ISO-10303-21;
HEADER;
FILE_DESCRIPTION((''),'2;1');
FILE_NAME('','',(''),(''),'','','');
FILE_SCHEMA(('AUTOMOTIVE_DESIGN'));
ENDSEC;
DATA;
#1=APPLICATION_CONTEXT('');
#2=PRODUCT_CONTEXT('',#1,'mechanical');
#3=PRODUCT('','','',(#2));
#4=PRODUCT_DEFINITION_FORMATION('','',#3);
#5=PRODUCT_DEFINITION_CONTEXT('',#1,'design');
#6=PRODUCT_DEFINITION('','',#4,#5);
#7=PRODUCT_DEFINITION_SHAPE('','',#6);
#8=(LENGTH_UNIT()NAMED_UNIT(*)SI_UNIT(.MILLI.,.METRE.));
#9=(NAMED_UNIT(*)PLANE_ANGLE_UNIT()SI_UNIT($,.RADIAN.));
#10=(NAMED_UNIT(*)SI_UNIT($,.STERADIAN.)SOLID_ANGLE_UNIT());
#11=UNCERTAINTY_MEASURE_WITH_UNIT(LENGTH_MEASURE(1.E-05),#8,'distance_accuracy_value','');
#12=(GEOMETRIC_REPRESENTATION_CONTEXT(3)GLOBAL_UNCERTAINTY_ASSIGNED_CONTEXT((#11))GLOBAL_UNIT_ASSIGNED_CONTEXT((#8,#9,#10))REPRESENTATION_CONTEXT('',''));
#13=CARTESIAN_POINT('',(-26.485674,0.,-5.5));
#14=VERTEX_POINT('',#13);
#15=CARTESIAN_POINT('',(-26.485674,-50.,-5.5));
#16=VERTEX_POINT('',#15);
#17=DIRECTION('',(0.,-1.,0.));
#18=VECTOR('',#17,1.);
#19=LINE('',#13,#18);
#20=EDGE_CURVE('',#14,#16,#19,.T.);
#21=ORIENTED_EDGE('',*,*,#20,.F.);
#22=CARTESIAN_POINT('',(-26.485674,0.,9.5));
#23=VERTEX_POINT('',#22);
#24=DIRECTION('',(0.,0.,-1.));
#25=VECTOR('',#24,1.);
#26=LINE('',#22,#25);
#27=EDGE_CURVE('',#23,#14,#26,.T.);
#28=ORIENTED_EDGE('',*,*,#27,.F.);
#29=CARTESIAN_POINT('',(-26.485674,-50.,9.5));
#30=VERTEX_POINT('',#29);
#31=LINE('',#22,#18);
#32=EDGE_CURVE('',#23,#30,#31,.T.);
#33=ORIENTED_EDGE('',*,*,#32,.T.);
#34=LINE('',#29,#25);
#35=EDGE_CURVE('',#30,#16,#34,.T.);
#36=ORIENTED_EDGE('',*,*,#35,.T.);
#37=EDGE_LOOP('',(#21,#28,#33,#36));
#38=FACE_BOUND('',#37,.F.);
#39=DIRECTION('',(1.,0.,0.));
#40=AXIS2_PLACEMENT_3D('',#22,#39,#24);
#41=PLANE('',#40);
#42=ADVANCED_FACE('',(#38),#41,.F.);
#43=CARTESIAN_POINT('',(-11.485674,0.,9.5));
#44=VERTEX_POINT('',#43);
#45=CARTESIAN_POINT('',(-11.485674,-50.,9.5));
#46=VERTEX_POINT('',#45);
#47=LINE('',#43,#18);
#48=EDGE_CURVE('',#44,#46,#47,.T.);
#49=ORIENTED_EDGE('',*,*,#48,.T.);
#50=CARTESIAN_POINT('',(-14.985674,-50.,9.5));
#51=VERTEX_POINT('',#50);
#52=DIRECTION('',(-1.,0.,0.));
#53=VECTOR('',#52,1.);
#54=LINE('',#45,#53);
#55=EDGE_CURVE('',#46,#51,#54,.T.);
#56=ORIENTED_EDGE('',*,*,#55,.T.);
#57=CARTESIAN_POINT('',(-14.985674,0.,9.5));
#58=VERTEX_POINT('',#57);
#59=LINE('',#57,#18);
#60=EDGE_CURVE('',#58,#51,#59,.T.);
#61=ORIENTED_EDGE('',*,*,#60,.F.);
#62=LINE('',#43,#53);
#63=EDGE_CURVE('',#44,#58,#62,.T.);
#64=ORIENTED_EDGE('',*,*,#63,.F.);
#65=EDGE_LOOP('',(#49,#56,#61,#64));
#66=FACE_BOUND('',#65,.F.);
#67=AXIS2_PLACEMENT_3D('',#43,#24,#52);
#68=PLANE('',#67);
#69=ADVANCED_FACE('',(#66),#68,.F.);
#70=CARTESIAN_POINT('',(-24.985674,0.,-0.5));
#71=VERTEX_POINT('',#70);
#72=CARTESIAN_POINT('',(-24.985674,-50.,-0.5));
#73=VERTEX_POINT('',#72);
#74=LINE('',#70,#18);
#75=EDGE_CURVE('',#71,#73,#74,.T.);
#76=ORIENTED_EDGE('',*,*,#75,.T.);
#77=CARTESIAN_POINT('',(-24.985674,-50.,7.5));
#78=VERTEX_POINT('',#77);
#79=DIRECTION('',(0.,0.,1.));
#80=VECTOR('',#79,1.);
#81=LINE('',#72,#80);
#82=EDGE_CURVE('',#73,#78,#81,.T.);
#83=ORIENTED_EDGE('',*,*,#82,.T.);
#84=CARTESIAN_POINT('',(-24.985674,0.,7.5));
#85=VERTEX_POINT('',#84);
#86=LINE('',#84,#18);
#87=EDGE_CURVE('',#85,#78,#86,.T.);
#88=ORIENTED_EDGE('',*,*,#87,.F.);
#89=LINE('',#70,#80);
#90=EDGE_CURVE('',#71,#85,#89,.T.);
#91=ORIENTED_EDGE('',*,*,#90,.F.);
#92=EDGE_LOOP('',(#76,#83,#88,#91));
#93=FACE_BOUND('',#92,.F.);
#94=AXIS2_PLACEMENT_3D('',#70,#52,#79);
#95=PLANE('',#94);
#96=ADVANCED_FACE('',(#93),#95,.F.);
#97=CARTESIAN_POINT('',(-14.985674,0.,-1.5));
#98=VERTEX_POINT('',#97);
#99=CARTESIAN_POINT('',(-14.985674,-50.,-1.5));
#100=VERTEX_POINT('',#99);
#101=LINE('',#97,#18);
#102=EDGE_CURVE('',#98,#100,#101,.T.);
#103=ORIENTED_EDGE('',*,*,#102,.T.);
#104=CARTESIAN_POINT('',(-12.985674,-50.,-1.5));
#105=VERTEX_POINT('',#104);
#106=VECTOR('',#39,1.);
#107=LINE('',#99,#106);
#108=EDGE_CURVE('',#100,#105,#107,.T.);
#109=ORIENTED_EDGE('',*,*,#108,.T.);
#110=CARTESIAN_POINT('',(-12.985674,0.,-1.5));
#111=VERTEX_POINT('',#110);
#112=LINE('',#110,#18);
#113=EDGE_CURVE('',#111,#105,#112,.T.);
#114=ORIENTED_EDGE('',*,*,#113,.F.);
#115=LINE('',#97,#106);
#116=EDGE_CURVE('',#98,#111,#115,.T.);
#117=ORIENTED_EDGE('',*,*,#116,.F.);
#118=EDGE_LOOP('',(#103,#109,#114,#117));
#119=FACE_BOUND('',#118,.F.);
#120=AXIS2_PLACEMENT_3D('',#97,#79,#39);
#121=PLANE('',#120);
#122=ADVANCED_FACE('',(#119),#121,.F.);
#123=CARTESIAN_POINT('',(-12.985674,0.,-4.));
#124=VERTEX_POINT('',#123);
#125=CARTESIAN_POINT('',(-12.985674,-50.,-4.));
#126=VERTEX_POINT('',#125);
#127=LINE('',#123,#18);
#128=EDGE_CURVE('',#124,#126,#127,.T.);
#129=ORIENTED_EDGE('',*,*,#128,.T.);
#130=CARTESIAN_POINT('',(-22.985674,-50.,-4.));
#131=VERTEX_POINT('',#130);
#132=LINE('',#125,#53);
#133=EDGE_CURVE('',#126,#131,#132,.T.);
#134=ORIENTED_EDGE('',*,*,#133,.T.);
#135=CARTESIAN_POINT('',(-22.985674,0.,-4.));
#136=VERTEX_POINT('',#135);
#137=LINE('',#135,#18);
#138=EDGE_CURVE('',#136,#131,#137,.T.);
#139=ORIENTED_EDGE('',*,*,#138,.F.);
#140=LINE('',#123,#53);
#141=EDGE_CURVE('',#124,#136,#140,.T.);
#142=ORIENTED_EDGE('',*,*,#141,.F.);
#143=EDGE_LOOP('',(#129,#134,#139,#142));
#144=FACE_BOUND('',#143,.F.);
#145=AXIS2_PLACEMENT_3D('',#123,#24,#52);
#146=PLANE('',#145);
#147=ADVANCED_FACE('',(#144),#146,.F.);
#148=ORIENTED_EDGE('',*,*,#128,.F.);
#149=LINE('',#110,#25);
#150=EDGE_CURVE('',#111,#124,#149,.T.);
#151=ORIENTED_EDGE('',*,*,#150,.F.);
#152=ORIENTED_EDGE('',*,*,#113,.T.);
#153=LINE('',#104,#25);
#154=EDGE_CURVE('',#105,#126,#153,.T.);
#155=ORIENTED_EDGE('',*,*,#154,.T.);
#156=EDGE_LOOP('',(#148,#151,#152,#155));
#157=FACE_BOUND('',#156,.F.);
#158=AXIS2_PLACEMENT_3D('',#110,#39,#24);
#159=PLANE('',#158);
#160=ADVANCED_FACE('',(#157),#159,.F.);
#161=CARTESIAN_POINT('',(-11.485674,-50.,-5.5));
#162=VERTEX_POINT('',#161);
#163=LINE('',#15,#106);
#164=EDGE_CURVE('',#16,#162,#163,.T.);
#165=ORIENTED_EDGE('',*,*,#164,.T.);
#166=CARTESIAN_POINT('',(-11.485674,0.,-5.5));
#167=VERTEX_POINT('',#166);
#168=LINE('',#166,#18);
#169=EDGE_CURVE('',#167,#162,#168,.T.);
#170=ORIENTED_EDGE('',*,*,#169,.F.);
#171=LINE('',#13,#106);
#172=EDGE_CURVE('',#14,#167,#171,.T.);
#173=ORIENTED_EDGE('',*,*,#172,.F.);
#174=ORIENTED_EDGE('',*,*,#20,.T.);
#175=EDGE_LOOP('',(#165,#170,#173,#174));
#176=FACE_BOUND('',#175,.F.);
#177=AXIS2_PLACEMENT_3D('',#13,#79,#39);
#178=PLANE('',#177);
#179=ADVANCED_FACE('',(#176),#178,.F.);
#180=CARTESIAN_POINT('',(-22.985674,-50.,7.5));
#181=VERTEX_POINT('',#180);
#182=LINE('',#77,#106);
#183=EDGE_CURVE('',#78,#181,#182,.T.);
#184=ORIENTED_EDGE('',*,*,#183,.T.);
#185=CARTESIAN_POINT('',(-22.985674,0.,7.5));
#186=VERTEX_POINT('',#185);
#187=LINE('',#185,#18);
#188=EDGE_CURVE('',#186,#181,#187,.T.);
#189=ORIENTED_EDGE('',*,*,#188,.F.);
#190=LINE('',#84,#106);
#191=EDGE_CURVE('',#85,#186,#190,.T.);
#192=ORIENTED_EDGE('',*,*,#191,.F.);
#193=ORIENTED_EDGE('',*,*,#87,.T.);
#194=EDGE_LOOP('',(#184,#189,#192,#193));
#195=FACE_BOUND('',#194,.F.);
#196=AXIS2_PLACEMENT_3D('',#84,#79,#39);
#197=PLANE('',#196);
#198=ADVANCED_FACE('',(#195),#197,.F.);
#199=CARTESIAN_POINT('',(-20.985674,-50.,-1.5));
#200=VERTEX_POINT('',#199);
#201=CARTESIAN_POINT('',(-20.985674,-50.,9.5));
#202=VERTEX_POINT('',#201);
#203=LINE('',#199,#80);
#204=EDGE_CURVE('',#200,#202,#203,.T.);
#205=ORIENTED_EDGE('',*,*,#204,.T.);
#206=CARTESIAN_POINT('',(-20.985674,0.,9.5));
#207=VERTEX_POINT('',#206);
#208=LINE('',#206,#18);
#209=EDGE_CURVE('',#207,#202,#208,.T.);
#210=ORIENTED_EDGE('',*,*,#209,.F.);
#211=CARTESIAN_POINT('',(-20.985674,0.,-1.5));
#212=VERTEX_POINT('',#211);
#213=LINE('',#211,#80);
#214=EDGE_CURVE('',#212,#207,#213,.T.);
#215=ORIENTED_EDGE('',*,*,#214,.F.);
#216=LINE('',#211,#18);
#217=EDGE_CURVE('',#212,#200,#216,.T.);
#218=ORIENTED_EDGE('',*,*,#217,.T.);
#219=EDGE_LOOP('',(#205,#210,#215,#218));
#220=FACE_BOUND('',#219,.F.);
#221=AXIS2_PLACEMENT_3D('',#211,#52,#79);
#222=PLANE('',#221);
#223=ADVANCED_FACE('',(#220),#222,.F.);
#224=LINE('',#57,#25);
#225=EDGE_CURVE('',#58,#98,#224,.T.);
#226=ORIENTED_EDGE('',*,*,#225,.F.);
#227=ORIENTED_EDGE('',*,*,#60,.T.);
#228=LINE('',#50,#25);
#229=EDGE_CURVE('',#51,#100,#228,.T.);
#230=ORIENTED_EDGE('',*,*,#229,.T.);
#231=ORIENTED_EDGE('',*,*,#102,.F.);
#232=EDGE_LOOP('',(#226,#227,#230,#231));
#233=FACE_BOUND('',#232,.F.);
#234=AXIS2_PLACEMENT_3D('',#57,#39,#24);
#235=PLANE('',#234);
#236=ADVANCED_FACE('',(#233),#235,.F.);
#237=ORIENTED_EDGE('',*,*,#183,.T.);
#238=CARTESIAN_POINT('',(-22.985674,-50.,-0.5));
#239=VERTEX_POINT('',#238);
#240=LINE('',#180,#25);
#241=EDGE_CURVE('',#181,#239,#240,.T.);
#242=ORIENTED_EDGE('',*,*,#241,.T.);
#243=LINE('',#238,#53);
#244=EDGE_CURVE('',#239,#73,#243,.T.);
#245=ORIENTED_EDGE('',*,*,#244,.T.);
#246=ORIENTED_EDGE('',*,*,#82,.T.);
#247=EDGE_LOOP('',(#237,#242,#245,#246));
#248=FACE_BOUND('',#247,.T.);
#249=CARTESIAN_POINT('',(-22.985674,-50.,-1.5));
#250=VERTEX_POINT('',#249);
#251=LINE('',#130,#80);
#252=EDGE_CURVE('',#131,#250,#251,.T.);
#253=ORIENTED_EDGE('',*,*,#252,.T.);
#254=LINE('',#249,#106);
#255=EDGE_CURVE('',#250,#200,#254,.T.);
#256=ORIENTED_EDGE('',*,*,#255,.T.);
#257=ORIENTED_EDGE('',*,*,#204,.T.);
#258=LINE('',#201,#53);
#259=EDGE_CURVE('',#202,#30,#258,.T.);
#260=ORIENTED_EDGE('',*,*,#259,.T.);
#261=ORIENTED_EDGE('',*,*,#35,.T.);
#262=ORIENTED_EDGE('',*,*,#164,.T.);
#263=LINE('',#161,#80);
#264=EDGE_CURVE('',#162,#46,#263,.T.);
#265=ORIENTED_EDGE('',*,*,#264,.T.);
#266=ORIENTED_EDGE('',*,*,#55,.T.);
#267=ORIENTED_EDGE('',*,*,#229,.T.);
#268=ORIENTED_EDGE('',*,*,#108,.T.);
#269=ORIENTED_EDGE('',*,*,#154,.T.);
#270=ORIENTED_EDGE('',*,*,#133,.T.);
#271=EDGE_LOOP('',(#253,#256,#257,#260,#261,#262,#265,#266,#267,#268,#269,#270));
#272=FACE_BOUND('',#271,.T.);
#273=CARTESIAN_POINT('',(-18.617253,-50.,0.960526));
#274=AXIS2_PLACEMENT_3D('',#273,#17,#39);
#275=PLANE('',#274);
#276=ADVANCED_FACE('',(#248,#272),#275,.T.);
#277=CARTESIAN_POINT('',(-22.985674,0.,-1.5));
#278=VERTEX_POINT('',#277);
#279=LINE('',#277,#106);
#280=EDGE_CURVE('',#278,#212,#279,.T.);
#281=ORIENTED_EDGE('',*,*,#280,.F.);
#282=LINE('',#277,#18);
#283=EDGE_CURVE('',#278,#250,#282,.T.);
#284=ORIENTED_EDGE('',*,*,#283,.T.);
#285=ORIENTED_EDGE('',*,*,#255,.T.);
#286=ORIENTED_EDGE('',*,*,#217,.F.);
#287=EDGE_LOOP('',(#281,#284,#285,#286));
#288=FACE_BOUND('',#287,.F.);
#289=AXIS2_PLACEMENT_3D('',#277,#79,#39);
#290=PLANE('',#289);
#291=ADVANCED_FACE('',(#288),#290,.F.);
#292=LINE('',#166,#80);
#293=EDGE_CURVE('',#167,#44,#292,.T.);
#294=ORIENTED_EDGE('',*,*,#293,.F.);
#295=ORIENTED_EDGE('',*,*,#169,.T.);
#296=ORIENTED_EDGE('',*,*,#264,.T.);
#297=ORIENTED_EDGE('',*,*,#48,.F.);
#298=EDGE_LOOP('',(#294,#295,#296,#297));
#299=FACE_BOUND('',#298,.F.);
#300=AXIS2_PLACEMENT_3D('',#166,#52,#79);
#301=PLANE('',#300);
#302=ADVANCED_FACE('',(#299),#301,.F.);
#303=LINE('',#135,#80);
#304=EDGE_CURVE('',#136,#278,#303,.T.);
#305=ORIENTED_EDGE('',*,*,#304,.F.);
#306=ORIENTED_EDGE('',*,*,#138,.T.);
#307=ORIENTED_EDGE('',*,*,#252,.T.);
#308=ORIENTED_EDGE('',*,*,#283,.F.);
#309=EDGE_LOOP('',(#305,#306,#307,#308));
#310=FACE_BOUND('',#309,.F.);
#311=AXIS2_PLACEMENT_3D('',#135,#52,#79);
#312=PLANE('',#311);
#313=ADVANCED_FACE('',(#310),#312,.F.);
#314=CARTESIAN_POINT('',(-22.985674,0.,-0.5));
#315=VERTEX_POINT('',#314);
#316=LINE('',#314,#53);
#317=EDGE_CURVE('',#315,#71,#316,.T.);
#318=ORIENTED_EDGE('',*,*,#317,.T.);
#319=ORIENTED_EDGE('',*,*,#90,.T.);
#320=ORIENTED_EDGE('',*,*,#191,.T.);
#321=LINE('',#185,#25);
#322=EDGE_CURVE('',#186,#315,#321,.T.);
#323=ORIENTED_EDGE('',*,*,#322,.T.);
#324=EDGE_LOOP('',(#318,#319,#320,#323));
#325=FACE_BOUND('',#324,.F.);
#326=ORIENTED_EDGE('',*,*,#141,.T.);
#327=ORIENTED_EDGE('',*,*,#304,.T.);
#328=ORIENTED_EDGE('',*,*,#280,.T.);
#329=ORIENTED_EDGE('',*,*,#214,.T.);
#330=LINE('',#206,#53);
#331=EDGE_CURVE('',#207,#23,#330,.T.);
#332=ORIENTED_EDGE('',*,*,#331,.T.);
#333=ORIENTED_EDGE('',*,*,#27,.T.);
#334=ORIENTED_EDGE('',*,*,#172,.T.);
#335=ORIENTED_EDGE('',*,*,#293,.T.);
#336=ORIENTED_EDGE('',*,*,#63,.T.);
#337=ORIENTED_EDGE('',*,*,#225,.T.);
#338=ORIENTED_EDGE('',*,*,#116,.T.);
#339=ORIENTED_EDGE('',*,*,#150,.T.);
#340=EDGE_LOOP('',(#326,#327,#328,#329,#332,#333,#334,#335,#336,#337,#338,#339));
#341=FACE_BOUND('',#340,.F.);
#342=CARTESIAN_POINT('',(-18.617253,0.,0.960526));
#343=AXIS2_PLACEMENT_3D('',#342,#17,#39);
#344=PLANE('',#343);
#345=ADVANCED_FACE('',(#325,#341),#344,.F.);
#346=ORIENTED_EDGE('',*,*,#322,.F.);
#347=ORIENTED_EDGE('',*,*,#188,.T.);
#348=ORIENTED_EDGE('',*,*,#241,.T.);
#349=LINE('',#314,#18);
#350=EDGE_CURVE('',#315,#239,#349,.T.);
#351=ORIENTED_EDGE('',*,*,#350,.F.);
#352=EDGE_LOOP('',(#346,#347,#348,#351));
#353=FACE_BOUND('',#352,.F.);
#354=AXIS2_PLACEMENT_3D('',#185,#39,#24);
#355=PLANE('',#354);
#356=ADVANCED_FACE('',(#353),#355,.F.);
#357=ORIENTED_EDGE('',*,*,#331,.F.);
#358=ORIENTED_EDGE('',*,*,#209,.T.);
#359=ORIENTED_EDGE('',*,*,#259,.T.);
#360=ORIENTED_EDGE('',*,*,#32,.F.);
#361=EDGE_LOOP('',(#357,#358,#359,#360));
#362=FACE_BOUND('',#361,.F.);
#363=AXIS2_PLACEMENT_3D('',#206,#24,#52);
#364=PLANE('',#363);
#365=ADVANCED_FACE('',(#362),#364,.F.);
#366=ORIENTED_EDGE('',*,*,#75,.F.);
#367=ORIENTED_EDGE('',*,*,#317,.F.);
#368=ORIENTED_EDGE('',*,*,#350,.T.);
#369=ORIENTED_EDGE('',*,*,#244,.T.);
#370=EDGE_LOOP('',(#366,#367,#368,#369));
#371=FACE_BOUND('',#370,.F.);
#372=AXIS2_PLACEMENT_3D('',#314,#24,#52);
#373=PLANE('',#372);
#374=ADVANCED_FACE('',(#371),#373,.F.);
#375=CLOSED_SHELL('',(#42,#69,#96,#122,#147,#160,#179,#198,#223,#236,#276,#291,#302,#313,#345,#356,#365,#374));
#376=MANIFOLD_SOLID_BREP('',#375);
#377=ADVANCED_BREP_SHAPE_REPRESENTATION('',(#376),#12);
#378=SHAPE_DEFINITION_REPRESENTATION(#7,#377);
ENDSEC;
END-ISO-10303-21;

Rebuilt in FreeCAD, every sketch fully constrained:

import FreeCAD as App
import Part
import Sketcher

V = App.Vector
Q = App.Units.Quantity

doc = App.newDocument("Part")
params = doc.addObject("Spreadsheet::Sheet", "Params")
for row, (alias, value) in enumerate([
    ("sketch1_width", "15 mm"),
    ("sketch1_width2", "2 mm"),
    ("sketch1_width3", "10 mm"),
    ("sketch1_height", "11 mm"),
    ("sketch1_height2", "8 mm"),
    ("pad1_length", "50 mm"),
], start=1):
    params.set(f"A{row}", alias)
    params.set(f"B{row}", "=" + value)
    params.setAlias(f"B{row}", alias)

body = doc.addObject("PartDesign::Body", "Body")

# Sketch on XZ plane
sketch1 = doc.addObject("Sketcher::SketchObject", "Sketch")
body.addObject(sketch1)
sketch1.AttachmentSupport = (doc.XZ_Plane, [""])
sketch1.MapMode = "FlatFace"
sketch1.addGeometry(Part.LineSegment(V(-20.985674, 9.5, 0), V(-26.485674, 9.5, 0)), False)
sketch1.addGeometry(Part.LineSegment(V(-26.485674, 9.5, 0), V(-26.485674, -5.5, 0)), False)
sketch1.addGeometry(Part.LineSegment(V(-26.485674, -5.5, 0), V(-11.485674, -5.5, 0)), False)
sketch1.addGeometry(Part.LineSegment(V(-11.485674, -5.5, 0), V(-11.485674, 9.5, 0)), False)
sketch1.addGeometry(Part.LineSegment(V(-11.485674, 9.5, 0), V(-14.985674, 9.5, 0)), False)
sketch1.addGeometry(Part.LineSegment(V(-14.985674, 9.5, 0), V(-14.985674, -1.5, 0)), False)
sketch1.addGeometry(Part.LineSegment(V(-14.985674, -1.5, 0), V(-12.985674, -1.5, 0)), False)
sketch1.addGeometry(Part.LineSegment(V(-12.985674, -1.5, 0), V(-12.985674, -4, 0)), False)
sketch1.addGeometry(Part.LineSegment(V(-12.985674, -4, 0), V(-22.985674, -4, 0)), False)
sketch1.addGeometry(Part.LineSegment(V(-22.985674, -4, 0), V(-22.985674, -1.5, 0)), False)
sketch1.addGeometry(Part.LineSegment(V(-22.985674, -1.5, 0), V(-20.985674, -1.5, 0)), False)
sketch1.addGeometry(Part.LineSegment(V(-20.985674, -1.5, 0), V(-20.985674, 9.5, 0)), False)
sketch1.addGeometry(Part.LineSegment(V(-22.985674, -0.5, 0), V(-24.985674, -0.5, 0)), False)
sketch1.addGeometry(Part.LineSegment(V(-24.985674, -0.5, 0), V(-24.985674, 7.5, 0)), False)
sketch1.addGeometry(Part.LineSegment(V(-24.985674, 7.5, 0), V(-22.985674, 7.5, 0)), False)
sketch1.addGeometry(Part.LineSegment(V(-22.985674, 7.5, 0), V(-22.985674, -0.5, 0)), False)
sketch1.addConstraint(Sketcher.Constraint("Coincident", 0, 2, 1, 1))
sketch1.addConstraint(Sketcher.Constraint("Coincident", 1, 2, 2, 1))
sketch1.addConstraint(Sketcher.Constraint("Coincident", 2, 2, 3, 1))
sketch1.addConstraint(Sketcher.Constraint("Coincident", 3, 2, 4, 1))
sketch1.addConstraint(Sketcher.Constraint("Coincident", 4, 2, 5, 1))
sketch1.addConstraint(Sketcher.Constraint("Coincident", 5, 2, 6, 1))
sketch1.addConstraint(Sketcher.Constraint("Coincident", 6, 2, 7, 1))
sketch1.addConstraint(Sketcher.Constraint("Coincident", 7, 2, 8, 1))
sketch1.addConstraint(Sketcher.Constraint("Coincident", 8, 2, 9, 1))
sketch1.addConstraint(Sketcher.Constraint("Coincident", 9, 2, 10, 1))
sketch1.addConstraint(Sketcher.Constraint("Coincident", 10, 2, 11, 1))
sketch1.addConstraint(Sketcher.Constraint("Coincident", 11, 2, 0, 1))
sketch1.addConstraint(Sketcher.Constraint("Coincident", 12, 2, 13, 1))
sketch1.addConstraint(Sketcher.Constraint("Coincident", 13, 2, 14, 1))
sketch1.addConstraint(Sketcher.Constraint("Coincident", 14, 2, 15, 1))
sketch1.addConstraint(Sketcher.Constraint("Coincident", 15, 2, 12, 1))
sketch1.addConstraint(Sketcher.Constraint("Horizontal", 0))
sketch1.addConstraint(Sketcher.Constraint("Vertical", 1))
sketch1.addConstraint(Sketcher.Constraint("Horizontal", 2))
sketch1.addConstraint(Sketcher.Constraint("Vertical", 3))
sketch1.addConstraint(Sketcher.Constraint("Horizontal", 4))
sketch1.addConstraint(Sketcher.Constraint("Vertical", 5))
sketch1.addConstraint(Sketcher.Constraint("Horizontal", 6))
sketch1.addConstraint(Sketcher.Constraint("Vertical", 7))
sketch1.addConstraint(Sketcher.Constraint("Horizontal", 8))
sketch1.addConstraint(Sketcher.Constraint("Vertical", 9))
sketch1.addConstraint(Sketcher.Constraint("Horizontal", 10))
sketch1.addConstraint(Sketcher.Constraint("Vertical", 11))
sketch1.addConstraint(Sketcher.Constraint("Horizontal", 12))
sketch1.addConstraint(Sketcher.Constraint("Vertical", 13))
sketch1.addConstraint(Sketcher.Constraint("Horizontal", 14))
sketch1.addConstraint(Sketcher.Constraint("Vertical", 15))
sketch1.addConstraint(Sketcher.Constraint("Horizontal", 0, 2, 3, 2))
sketch1.addConstraint(Sketcher.Constraint("Horizontal", 6, 2, 9, 2))
sketch1.addConstraint(Sketcher.Constraint("Vertical", 9, 2, 14, 2))
sketch1.addConstraint(Sketcher.Constraint("Equal", 6, 10))
sketch1.addConstraint(Sketcher.Constraint("Equal", 10, 12))
sketch1.addConstraint(Sketcher.Constraint("Equal", 2, 1))
sketch1.addConstraint(Sketcher.Constraint("DistanceX", 2, 1, 2, 2, Q("15 mm")))
sketch1.addConstraint(Sketcher.Constraint("DistanceX", 6, 1, 6, 2, Q("2 mm")))
sketch1.addConstraint(Sketcher.Constraint("DistanceX", 8, 2, 8, 1, Q("10 mm")))
sketch1.addConstraint(Sketcher.Constraint("DistanceY", 5, 2, 5, 1, Q("11 mm")))
sketch1.addConstraint(Sketcher.Constraint("DistanceY", 13, 1, 13, 2, Q("8 mm")))
sketch1.addConstraint(Sketcher.Constraint("DistanceX", 0, 2, 0, 1, Q("5.5 mm")))
sketch1.addConstraint(Sketcher.Constraint("DistanceY", 7, 2, 7, 1, Q("2.5 mm")))
sketch1.addConstraint(Sketcher.Constraint("DistanceY", 7, 2, -1, 1, Q("4 mm")))
sketch1.addConstraint(Sketcher.Constraint("DistanceY", 9, 2, 12, 2, Q("1 mm")))
sketch1.addConstraint(Sketcher.Constraint("DistanceX", 0, 2, -1, 1, Q("26.485674 mm")))
sketch1.setExpression("Constraints[38]", "Params.sketch1_width")
sketch1.setExpression("Constraints[39]", "Params.sketch1_width2")
sketch1.setExpression("Constraints[40]", "Params.sketch1_width3")
sketch1.setExpression("Constraints[41]", "Params.sketch1_height")
sketch1.setExpression("Constraints[42]", "Params.sketch1_height2")
pad1 = doc.addObject("PartDesign::Pad", "Pad")
body.addObject(pad1)
pad1.Profile = sketch1
pad1.setExpression("Length", "Params.pad1_length")

doc.recompute()
